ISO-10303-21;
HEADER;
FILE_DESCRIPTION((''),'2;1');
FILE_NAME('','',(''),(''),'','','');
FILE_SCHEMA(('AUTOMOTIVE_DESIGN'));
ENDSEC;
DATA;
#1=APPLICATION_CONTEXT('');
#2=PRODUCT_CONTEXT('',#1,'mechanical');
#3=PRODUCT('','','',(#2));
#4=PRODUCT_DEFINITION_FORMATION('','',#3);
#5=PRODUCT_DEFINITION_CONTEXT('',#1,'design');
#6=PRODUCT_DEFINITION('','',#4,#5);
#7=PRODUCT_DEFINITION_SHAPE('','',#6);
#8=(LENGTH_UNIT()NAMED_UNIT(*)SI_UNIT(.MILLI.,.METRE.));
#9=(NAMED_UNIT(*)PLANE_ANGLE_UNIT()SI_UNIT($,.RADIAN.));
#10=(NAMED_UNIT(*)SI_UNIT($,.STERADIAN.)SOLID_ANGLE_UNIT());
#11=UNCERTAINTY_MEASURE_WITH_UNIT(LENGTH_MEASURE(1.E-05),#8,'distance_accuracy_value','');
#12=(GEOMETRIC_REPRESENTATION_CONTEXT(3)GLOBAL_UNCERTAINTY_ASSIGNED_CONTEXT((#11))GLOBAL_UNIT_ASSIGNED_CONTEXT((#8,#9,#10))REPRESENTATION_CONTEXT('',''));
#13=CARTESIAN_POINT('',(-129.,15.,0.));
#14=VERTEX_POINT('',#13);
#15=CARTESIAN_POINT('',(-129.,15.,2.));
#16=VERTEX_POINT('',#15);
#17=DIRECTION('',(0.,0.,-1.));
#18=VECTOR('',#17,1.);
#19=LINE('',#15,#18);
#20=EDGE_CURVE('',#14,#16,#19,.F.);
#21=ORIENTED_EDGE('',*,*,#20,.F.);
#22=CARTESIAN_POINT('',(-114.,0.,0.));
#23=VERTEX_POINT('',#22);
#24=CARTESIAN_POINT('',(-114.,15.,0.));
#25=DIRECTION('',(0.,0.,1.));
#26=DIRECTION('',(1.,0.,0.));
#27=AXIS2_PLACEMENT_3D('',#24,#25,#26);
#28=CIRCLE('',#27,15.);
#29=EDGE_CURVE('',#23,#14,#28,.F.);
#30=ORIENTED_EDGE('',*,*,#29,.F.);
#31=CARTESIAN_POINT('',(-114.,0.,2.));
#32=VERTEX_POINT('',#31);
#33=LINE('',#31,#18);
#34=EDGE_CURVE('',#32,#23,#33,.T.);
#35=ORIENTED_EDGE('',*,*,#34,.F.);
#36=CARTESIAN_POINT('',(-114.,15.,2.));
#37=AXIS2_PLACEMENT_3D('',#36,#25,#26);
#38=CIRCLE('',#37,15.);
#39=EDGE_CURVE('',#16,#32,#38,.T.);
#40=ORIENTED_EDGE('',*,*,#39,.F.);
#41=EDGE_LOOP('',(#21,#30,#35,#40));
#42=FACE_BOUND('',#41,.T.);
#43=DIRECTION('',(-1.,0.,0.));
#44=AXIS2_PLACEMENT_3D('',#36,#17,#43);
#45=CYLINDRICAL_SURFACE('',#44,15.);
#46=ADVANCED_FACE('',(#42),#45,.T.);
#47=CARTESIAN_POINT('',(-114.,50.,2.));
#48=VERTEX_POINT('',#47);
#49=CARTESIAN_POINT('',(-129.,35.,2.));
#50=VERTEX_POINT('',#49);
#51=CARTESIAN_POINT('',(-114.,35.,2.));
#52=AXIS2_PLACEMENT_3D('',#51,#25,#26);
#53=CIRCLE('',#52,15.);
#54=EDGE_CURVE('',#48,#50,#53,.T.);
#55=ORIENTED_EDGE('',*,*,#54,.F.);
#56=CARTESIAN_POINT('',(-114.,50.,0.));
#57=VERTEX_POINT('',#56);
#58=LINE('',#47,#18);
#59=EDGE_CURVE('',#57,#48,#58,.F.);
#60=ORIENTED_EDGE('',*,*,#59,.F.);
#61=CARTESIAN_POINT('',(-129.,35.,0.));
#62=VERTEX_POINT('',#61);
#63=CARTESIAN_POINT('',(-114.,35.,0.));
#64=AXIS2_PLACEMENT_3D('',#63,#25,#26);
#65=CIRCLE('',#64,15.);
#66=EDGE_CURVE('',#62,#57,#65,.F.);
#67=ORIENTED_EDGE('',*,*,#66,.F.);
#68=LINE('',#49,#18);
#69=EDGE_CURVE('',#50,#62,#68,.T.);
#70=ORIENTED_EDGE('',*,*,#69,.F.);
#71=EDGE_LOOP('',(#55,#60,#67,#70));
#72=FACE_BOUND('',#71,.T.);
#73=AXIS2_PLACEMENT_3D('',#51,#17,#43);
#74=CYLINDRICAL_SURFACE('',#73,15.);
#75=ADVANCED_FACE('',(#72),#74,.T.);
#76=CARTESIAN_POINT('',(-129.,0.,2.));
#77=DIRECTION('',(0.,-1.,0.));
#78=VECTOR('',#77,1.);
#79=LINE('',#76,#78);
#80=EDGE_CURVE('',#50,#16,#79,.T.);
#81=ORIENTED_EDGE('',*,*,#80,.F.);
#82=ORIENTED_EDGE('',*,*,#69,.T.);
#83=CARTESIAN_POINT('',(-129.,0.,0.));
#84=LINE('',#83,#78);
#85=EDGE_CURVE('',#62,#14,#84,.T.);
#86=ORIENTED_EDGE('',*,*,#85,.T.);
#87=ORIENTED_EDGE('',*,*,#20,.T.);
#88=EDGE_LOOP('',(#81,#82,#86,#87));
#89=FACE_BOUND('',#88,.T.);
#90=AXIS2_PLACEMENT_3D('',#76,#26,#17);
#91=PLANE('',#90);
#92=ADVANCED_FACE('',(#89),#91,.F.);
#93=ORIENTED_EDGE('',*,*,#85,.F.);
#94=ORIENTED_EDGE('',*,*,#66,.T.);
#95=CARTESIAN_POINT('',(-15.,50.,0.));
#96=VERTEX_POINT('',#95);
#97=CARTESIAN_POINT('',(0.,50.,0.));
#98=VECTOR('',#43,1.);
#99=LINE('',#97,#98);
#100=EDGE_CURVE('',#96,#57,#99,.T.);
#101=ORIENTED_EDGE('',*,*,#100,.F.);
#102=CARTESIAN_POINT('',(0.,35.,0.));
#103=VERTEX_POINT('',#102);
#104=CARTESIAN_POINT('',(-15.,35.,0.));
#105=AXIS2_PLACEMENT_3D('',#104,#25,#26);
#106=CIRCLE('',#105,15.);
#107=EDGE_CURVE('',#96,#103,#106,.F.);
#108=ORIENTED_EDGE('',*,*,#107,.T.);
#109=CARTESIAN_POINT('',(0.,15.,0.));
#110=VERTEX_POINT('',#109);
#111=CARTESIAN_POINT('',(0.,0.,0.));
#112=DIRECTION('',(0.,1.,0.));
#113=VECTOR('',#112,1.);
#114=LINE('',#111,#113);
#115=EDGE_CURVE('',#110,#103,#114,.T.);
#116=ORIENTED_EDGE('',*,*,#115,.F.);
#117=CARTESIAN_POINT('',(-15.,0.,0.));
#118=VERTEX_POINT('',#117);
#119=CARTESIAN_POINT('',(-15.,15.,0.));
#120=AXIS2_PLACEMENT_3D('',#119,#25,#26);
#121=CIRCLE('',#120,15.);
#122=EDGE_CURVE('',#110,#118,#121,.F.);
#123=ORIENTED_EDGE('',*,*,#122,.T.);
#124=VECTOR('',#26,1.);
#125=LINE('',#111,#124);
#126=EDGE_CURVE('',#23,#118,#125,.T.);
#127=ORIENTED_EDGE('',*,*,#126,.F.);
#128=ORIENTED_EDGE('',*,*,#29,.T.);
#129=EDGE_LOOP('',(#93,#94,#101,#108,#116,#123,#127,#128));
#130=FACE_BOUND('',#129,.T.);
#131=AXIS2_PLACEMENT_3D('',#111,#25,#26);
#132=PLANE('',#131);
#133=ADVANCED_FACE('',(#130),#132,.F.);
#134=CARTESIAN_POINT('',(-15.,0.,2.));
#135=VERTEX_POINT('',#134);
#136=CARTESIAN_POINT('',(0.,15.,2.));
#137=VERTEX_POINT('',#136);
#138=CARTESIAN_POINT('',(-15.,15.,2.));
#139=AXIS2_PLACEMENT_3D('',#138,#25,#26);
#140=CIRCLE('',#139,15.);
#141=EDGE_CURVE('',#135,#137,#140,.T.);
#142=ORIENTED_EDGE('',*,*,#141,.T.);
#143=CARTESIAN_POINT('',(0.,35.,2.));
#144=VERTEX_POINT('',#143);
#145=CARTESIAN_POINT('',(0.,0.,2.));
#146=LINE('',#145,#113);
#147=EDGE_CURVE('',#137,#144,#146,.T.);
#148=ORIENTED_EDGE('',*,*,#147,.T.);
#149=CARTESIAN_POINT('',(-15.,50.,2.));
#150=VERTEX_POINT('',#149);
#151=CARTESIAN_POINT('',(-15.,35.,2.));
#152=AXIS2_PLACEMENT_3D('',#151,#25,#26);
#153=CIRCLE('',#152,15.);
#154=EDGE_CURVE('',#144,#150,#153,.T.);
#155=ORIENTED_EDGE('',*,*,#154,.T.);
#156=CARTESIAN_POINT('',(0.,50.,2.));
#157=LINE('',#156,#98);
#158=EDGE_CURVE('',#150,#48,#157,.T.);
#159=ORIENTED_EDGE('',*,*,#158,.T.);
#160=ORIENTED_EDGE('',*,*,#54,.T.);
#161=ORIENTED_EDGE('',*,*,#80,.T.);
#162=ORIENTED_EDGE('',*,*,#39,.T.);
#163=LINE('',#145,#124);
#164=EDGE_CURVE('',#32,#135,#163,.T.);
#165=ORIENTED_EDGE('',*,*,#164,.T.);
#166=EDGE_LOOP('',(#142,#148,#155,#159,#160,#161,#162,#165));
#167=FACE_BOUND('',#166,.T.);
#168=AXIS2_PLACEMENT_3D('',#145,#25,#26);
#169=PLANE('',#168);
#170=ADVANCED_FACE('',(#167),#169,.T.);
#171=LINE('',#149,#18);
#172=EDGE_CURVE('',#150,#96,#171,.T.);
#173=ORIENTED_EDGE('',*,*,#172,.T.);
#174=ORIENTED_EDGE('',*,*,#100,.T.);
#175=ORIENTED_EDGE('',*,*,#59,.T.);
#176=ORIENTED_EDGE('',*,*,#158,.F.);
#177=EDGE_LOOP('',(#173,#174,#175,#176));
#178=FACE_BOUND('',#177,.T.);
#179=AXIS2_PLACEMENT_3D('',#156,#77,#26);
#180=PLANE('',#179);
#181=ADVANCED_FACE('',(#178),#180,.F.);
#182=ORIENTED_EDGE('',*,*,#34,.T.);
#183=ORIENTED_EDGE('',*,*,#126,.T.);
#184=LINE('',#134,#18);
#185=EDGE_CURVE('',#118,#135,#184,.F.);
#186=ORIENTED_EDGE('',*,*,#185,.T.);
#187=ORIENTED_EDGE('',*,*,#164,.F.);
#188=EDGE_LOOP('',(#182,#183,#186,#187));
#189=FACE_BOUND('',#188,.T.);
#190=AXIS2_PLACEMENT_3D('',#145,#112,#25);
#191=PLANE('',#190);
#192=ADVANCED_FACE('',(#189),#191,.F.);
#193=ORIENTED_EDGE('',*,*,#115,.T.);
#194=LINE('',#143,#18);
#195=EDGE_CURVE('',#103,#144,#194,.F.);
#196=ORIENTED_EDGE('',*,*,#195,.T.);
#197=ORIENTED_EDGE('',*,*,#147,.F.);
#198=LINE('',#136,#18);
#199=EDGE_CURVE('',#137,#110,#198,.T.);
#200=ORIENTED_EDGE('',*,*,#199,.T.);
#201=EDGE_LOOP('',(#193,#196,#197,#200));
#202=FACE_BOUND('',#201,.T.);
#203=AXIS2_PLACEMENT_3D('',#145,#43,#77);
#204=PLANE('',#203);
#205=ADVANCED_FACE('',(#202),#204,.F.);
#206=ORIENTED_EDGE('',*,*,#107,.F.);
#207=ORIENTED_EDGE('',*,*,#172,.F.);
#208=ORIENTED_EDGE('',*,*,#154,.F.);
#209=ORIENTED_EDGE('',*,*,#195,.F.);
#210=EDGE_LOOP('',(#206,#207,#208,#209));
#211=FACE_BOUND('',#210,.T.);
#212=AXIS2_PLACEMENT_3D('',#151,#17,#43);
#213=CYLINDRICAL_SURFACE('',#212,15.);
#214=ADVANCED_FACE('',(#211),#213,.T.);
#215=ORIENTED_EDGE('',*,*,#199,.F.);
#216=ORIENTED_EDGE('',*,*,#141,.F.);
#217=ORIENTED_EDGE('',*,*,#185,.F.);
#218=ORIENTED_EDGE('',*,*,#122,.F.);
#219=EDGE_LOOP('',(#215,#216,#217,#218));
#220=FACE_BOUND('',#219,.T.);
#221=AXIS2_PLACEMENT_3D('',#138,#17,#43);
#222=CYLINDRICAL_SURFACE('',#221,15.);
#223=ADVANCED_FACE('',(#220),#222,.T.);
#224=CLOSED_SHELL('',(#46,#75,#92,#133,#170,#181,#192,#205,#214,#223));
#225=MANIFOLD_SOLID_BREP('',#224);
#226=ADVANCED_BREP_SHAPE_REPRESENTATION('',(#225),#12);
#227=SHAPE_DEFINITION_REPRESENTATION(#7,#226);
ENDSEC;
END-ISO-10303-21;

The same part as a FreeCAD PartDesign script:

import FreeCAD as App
import Part
import Sketcher

V = App.Vector
Q = App.Units.Quantity


def edges_at(feature, points):
    """Names of the edges that pass closest to the given points."""
    edges = feature.Shape.Edges
    near = lambda p: min(range(len(edges)), key=lambda i: edges[i].distToShape(Part.Vertex(*p))[0])
    return sorted({f"Edge{near(p) + 1}" for p in points})


def add_polygon(sketch, points):
    """Adds a closed chain of lines whose ends are joined by coincident constraints."""
    first, n = sketch.GeometryCount, len(points)
    for a, b in zip(points, points[1:] + points[:1]):
        sketch.addGeometry(Part.LineSegment(App.Vector(*a, 0), App.Vector(*b, 0)), False)
    for i in range(n):
        sketch.addConstraint(Sketcher.Constraint("Coincident", first + i, 2, first + (i + 1) % n, 1))

doc = App.newDocument("Part")
params = doc.addObject("Spreadsheet::Sheet", "Params")
for row, (alias, value) in enumerate([
    ("sketch1_width", "129 mm"),
    ("sketch1_height", "50 mm"),
    ("pad1_length", "2 mm"),
    ("fillet_radius", "15 mm"),
], start=1):
    params.set(f"A{row}", alias)
    params.set(f"B{row}", "=" + value)
    params.setAlias(f"B{row}", alias)

body = doc.addObject("PartDesign::Body", "Body")

# Sketch on XY plane
sketch1 = doc.addObject("Sketcher::SketchObject", "Sketch")
body.addObject(sketch1)
sketch1.AttachmentSupport = (doc.XY_Plane, [""])
sketch1.MapMode = "FlatFace"
add_polygon(sketch1, [(-129, 50), (-129, 0), (0, 0), (0, 50)])  # lines 0-3
sketch1.addConstraint([
    Sketcher.Constraint("Vertical", 0),
    Sketcher.Constraint("Horizontal", 1),
    Sketcher.Constraint("Vertical", 2),
    Sketcher.Constraint("Horizontal", 3),
    Sketcher.Constraint("Coincident", 1, 2, -1, 1),
    Sketcher.Constraint("DistanceX", 1, 1, 1, 2, Q("129 mm")),
    Sketcher.Constraint("DistanceY", 0, 2, 0, 1, Q("50 mm")),
])
sketch1.setExpression("Constraints[9]", "Params.sketch1_width")
sketch1.setExpression("Constraints[10]", "Params.sketch1_height")
pad1 = doc.addObject("PartDesign::Pad", "Pad")
body.addObject(pad1)
pad1.Profile = sketch1
pad1.setExpression("Length", "Params.pad1_length")
doc.recompute()

fillet = doc.addObject("PartDesign::Fillet", "Fillet")
body.addObject(fillet)
fillet.Base = (pad1, edges_at(pad1, [
    (0, 0, 1),
    (-129, 0, 1),
    (-129, 50, 1),
    (0, 50, 1),
]))
fillet.setExpression("Radius", "Params.fillet_radius")

doc.recompute()
